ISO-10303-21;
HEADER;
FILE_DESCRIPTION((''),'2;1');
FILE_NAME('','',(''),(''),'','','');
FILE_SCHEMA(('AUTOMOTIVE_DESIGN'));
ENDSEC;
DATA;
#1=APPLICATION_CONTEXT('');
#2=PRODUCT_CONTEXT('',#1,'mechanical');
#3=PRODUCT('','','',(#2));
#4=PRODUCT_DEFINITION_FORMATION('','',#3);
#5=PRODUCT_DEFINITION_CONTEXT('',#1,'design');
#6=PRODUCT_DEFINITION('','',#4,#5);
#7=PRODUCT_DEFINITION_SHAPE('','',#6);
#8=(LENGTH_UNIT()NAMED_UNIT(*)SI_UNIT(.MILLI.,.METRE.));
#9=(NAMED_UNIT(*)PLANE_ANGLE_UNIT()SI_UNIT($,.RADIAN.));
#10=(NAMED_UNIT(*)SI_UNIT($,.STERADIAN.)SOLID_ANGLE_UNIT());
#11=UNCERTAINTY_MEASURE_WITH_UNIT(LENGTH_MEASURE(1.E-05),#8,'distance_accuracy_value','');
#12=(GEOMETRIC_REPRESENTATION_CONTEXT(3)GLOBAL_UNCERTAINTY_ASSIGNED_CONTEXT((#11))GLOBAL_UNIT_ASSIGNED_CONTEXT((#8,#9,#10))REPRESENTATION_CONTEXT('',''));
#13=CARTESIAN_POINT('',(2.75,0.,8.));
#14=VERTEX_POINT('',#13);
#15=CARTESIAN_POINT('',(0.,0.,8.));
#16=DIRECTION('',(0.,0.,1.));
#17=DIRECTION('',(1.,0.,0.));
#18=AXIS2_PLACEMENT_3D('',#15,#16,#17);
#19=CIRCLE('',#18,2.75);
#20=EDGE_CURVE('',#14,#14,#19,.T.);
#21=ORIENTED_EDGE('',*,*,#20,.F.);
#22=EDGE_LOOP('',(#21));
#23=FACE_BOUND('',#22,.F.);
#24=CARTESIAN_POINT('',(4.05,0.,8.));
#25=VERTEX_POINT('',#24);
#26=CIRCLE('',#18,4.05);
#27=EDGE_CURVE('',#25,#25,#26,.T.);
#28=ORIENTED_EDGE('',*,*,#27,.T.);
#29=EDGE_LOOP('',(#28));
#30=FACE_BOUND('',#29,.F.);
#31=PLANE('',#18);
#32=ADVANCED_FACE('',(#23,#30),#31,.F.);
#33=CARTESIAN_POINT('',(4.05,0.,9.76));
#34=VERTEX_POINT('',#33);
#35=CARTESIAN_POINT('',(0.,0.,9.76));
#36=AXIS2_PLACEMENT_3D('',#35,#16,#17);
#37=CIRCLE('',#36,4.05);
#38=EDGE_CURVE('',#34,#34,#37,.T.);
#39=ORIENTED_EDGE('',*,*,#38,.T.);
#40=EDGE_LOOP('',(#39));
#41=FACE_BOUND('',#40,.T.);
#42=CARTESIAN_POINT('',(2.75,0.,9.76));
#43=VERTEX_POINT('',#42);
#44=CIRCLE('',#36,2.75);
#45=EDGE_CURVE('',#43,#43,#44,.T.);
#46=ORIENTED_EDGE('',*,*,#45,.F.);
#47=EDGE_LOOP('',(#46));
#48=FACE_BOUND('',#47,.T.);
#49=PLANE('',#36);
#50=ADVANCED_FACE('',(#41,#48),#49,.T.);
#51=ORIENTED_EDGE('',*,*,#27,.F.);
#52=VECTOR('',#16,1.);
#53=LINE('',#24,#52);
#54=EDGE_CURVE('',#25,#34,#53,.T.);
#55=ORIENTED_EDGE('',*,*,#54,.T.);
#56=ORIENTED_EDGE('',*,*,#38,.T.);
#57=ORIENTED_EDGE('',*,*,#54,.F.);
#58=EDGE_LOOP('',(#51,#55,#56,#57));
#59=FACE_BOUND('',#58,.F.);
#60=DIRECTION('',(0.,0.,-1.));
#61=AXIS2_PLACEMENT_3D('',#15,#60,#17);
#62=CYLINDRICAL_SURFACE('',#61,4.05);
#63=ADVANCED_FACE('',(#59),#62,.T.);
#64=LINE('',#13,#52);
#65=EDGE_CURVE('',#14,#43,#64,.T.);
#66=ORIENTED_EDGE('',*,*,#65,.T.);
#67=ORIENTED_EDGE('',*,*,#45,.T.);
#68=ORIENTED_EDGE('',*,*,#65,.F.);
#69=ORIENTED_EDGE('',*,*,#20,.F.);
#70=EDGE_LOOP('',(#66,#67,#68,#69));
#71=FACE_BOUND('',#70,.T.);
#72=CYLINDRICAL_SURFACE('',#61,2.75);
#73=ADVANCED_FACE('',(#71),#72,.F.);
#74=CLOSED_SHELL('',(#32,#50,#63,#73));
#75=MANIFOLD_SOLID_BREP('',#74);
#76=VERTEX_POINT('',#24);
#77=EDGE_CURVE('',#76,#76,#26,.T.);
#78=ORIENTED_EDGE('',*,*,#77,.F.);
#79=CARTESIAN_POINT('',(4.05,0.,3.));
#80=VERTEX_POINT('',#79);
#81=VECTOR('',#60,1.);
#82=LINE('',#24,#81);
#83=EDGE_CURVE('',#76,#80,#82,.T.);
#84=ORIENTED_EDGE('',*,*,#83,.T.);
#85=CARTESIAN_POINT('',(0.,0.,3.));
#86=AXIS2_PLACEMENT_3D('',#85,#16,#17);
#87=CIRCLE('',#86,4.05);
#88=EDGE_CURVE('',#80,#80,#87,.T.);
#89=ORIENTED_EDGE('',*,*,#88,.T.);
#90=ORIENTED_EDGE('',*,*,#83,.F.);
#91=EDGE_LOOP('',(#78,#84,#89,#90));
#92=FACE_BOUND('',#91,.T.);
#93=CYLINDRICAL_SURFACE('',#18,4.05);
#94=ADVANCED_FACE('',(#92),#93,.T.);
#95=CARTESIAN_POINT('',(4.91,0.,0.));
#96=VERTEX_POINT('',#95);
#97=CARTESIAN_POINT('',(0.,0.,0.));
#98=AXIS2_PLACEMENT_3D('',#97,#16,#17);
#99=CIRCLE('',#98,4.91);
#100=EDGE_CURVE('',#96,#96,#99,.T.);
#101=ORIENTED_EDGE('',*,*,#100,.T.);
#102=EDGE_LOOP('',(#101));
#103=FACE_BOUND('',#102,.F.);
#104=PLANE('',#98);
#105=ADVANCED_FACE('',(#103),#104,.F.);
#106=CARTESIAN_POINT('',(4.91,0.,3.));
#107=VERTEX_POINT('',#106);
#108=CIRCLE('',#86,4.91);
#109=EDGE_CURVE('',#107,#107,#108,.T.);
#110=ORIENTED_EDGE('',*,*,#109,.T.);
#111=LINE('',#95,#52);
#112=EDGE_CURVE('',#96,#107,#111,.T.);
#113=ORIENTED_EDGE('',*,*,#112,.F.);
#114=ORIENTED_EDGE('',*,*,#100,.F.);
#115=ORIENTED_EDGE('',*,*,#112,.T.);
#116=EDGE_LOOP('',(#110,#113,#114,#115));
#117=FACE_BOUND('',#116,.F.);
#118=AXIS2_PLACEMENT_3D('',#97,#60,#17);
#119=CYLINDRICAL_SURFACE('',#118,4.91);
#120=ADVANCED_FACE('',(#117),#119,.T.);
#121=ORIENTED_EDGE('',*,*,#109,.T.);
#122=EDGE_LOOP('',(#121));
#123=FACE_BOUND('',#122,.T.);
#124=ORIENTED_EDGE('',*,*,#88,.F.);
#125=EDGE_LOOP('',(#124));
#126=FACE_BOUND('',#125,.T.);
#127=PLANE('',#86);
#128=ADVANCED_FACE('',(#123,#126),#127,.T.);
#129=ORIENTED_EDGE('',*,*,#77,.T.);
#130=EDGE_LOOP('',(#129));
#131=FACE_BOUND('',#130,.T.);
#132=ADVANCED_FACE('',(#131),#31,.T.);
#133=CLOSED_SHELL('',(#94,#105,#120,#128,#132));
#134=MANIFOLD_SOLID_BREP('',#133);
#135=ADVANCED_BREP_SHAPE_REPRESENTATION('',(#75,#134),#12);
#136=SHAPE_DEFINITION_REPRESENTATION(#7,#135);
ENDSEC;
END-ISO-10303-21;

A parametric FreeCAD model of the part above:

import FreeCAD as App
import Part
import Sketcher
from FreeCAD import Vector

doc = App.newDocument("Part")
body = doc.addObject("PartDesign::Body", "Body")

sketch1 = doc.addObject("Sketcher::SketchObject", "Sketch")
body.addObject(sketch1)
sketch1.AttachmentSupport = (doc.XY_Plane, [""])
sketch1.MapMode = "FlatFace"
sketch1.addGeometry(Part.Circle(Vector(0, 0, 0), Vector(0, 0, 1), 4.9), False)
sketch1.addConstraint(Sketcher.Constraint("Coincident", 0, 3, -1, 1))
sketch1.addConstraint(Sketcher.Constraint("Diameter", 0, 9.82))
pad1 = doc.addObject("PartDesign::Pad", "Pad")
body.addObject(pad1)
pad1.Profile = sketch1
pad1.Length = 8

sketch2 = doc.addObject("Sketcher::SketchObject", "Sketch001")
body.addObject(sketch2)
sketch2.AttachmentSupport = (doc.XY_Plane, [""])
sketch2.MapMode = "FlatFace"
sketch2.AttachmentOffset = App.Placement(Vector(0, 0, 8), App.Rotation())
sketch2.addGeometry(Part.Circle(Vector(0, 0, 0), Vector(0, 0, 1), 4.9), False)
sketch2.addGeometry(Part.Circle(Vector(0, 0, 0), Vector(0, 0, 1), 4), False)
sketch2.addConstraint(Sketcher.Constraint("Coincident", 0, 3, -1, 1))
sketch2.addConstraint(Sketcher.Constraint("Coincident", 1, 3, -1, 1))
sketch2.addConstraint(Sketcher.Constraint("Diameter", 1, 8.1))
sketch2.addConstraint(Sketcher.Constraint("Diameter", 0, 9.82))
pocket1 = doc.addObject("PartDesign::Pocket", "Pocket")
body.addObject(pocket1)
pocket1.Profile = sketch2
pocket1.Length = 5
body2 = doc.addObject("PartDesign::Body", "Body001")

sketch3 = doc.addObject("Sketcher::SketchObject", "Sketch002")
body2.addObject(sketch3)
sketch3.AttachmentSupport = (doc.getObject("XY_Plane001"), [""])
sketch3.MapMode = "FlatFace"
sketch3.AttachmentOffset = App.Placement(Vector(0, 0, 8), App.Rotation())
sketch3.addGeometry(Part.Circle(Vector(0, 0, 0), Vector(0, 0, 1), 4), False)
sketch3.addGeometry(Part.Circle(Vector(0, 0, 0), Vector(0, 0, 1), 2.8), False)
sketch3.addConstraint(Sketcher.Constraint("Coincident", 0, 3, -1, 1))
sketch3.addConstraint(Sketcher.Constraint("Coincident", 1, 3, -1, 1))
sketch3.addConstraint(Sketcher.Constraint("Diameter", 0, 8.1))
sketch3.addConstraint(Sketcher.Constraint("Diameter", 1, 5.5))
pad2 = doc.addObject("PartDesign::Pad", "Pad001")
body2.addObject(pad2)
pad2.Profile = sketch3
pad2.Length = 1.76

doc.recompute()
